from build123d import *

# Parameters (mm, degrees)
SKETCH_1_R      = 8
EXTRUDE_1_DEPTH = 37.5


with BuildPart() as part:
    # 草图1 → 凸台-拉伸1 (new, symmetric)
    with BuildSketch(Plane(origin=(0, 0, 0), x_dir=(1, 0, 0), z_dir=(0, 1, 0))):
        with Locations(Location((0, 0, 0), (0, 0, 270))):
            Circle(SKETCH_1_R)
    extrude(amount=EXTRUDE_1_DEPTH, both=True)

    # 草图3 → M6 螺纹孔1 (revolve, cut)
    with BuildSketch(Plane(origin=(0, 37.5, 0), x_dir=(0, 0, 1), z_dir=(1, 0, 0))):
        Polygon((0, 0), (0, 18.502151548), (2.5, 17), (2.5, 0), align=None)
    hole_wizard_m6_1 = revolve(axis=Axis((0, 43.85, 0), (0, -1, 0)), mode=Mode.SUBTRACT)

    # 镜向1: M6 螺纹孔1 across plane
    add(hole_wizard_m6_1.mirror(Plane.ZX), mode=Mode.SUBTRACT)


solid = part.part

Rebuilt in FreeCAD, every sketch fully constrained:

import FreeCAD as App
import Part
import Sketcher
Q = App.Units.Quantity


def add_polygon(sketch, points):
    """Adds a closed chain of lines whose ends are joined by coincident constraints."""
    first, n = sketch.GeometryCount, len(points)
    for a, b in zip(points, points[1:] + points[:1]):
        sketch.addGeometry(Part.LineSegment(App.Vector(*a, 0), App.Vector(*b, 0)), False)
    for i in range(n):
        sketch.addConstraint(Sketcher.Constraint("Coincident", first + i, 2, first + (i + 1) % n, 1))

doc = App.newDocument("Part")
body = doc.addObject("PartDesign::Body", "Body")

sketch1 = body.newObject("Sketcher::SketchObject", "Sketch")
sketch1.AttachmentSupport = (doc.getObject("XZ_Plane"), [""])
sketch1.MapMode = "FlatFace"
sketch1.addGeometry(Part.Circle(App.Vector(0, 0, 0), App.Vector(0, 0, 1), 8), False)
sketch1.addConstraint(Sketcher.Constraint("Coincident", 0, 3, -1, 1))
sketch1.addConstraint(Sketcher.Constraint("Diameter", 0, Q("16 mm")))
pad1 = body.newObject("PartDesign::Pad", "Pad")
pad1.Profile = sketch1
pad1.Length = 75
pad1.Midplane = True

sketch2 = body.newObject("Sketcher::SketchObject", "Sketch001")
sketch2.AttachmentSupport = (doc.getObject("YZ_Plane"), [""])
sketch2.MapMode = "FlatFace"
add_polygon(sketch2, [(19, 0), (37.5, 0), (37.5, 2.5), (20.5, 2.5)])
sketch2.addConstraint(Sketcher.Constraint("Horizontal", 0))
sketch2.addConstraint(Sketcher.Constraint("Vertical", 1))
sketch2.addConstraint(Sketcher.Constraint("Horizontal", 2))
sketch2.addConstraint(Sketcher.Constraint("PointOnObject", 0, 2, -1))
sketch2.addConstraint(Sketcher.Constraint("DistanceX", 2, 2, 2, 1, Q("17 mm")))
sketch2.addConstraint(Sketcher.Constraint("Angle", 3, Q("-121 deg")))
sketch2.addConstraint(Sketcher.Constraint("DistanceY", 1, 1, 1, 2, Q("2.5 mm")))
sketch2.addConstraint(Sketcher.Constraint("DistanceX", -1, 1, 0, 2, Q("37.5 mm")))
groove = body.newObject("PartDesign::Groove", "Groove")
groove.Profile = sketch2
groove.ReferenceAxis = (sketch2, ["H_Axis"])
groove.Angle = 360
doc.recompute()

mirrored = body.newObject("PartDesign::Mirrored", "Mirrored")
mirrored.Originals = [groove]
mirrored.MirrorPlane = (doc.getObject("XZ_Plane"), [""])
body.Tip = mirrored

doc.recompute()
